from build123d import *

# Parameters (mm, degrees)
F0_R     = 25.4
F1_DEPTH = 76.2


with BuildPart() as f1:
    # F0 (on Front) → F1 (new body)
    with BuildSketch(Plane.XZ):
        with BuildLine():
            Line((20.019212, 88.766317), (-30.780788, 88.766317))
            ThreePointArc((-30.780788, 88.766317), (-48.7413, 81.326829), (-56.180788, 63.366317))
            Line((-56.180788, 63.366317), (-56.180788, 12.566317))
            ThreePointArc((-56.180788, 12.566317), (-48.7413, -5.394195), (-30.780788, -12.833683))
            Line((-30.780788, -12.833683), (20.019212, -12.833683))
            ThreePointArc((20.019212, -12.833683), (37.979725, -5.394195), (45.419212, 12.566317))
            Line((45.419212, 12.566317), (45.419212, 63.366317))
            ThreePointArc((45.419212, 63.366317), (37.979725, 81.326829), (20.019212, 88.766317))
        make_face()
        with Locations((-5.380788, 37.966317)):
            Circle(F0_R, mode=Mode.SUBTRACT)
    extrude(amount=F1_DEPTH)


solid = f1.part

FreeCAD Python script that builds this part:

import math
import FreeCAD as App
import Part
import Sketcher

V = App.Vector
Q = App.Units.Quantity

doc = App.newDocument("Part")
params = doc.addObject("Spreadsheet::Sheet", "Params")
for row, (alias, value) in enumerate([
    ("sketch1_diameter", "2 in"),
    ("sketch1_width", "2 in"),
    ("pad1_length", "3 in"),
], start=1):
    params.set(f"A{row}", alias)
    params.set(f"B{row}", "=" + value)
    params.setAlias(f"B{row}", alias)

body = doc.addObject("PartDesign::Body", "Body")

# Sketch on XZ plane
sketch1 = body.newObject("Sketcher::SketchObject", "Sketch")
sketch1.AttachmentSupport = (doc.getObject("XZ_Plane"), [""])
sketch1.MapMode = "FlatFace"
sketch1.addGeometry([
    Part.LineSegment(V(20, 89, 0), V(-31, 89, 0)),  # 0
    Part.ArcOfCircle(Part.Circle(V(-31, 63, 0), V(0, 0, 1), 25), math.radians(90), math.radians(180)),  # 1
    Part.LineSegment(V(-56, 63, 0), V(-56, 13, 0)),  # 2
    Part.ArcOfCircle(Part.Circle(V(-31, 13, 0), V(0, 0, 1), 25), math.radians(-180), math.radians(-90)),  # 3
    Part.LineSegment(V(-31, -13, 0), V(20, -13, 0)),  # 4
    Part.ArcOfCircle(Part.Circle(V(20, 13, 0), V(0, 0, 1), 25), math.radians(-90), math.radians(0)),  # 5
    Part.LineSegment(V(45, 13, 0), V(45, 63, 0)),  # 6
    Part.ArcOfCircle(Part.Circle(V(20, 63, 0), V(0, 0, 1), 25), math.radians(0), math.radians(90)),  # 7
    Part.Circle(V(-5, 38, 0), V(0, 0, 1), 25),  # 8
], False)
sketch1.addConstraint([
    Sketcher.Constraint("Tangent", 0, 2, 1, 1),
    Sketcher.Constraint("Tangent", 1, 2, 2, 1),
    Sketcher.Constraint("Tangent", 2, 2, 3, 1),
    Sketcher.Constraint("Tangent", 3, 2, 4, 1),
    Sketcher.Constraint("Tangent", 4, 2, 5, 1),
    Sketcher.Constraint("Tangent", 5, 2, 6, 1),
    Sketcher.Constraint("Tangent", 6, 2, 7, 1),
    Sketcher.Constraint("Tangent", 7, 2, 0, 1),
    Sketcher.Constraint("Horizontal", 0),
    Sketcher.Constraint("Vertical", 2),
    Sketcher.Constraint("Horizontal", 4),
    Sketcher.Constraint("Vertical", 6),
    Sketcher.Constraint("Equal", 1, 3),
    Sketcher.Constraint("Equal", 3, 5),
    Sketcher.Constraint("Equal", 5, 7),
    Sketcher.Constraint("Equal", 7, 8),
    Sketcher.Constraint("Equal", 4, 2),
    Sketcher.Constraint("Diameter", 8, Q("2 in")),
    Sketcher.Constraint("DistanceX", 0, 2, 0, 1, Q("2 in")),
    Sketcher.Constraint("DistanceX", 1, 3, 8, 3, Q("1 in")),
    Sketcher.Constraint("DistanceY", 8, 3, 1, 3, Q("1 in")),
    Sketcher.Constraint("DistanceX", 0, 2, -1, 1, 30.780788),
    Sketcher.Constraint("DistanceY", -1, 1, 1, 3, 63.366316),
])
sketch1.setExpression("Constraints[17]", "Params.sketch1_diameter")
sketch1.setExpression("Constraints[18]", "Params.sketch1_width")
pad1 = body.newObject("PartDesign::Pad", "Pad")
pad1.Profile = sketch1
pad1.setExpression("Length", "Params.pad1_length")

doc.recompute()
